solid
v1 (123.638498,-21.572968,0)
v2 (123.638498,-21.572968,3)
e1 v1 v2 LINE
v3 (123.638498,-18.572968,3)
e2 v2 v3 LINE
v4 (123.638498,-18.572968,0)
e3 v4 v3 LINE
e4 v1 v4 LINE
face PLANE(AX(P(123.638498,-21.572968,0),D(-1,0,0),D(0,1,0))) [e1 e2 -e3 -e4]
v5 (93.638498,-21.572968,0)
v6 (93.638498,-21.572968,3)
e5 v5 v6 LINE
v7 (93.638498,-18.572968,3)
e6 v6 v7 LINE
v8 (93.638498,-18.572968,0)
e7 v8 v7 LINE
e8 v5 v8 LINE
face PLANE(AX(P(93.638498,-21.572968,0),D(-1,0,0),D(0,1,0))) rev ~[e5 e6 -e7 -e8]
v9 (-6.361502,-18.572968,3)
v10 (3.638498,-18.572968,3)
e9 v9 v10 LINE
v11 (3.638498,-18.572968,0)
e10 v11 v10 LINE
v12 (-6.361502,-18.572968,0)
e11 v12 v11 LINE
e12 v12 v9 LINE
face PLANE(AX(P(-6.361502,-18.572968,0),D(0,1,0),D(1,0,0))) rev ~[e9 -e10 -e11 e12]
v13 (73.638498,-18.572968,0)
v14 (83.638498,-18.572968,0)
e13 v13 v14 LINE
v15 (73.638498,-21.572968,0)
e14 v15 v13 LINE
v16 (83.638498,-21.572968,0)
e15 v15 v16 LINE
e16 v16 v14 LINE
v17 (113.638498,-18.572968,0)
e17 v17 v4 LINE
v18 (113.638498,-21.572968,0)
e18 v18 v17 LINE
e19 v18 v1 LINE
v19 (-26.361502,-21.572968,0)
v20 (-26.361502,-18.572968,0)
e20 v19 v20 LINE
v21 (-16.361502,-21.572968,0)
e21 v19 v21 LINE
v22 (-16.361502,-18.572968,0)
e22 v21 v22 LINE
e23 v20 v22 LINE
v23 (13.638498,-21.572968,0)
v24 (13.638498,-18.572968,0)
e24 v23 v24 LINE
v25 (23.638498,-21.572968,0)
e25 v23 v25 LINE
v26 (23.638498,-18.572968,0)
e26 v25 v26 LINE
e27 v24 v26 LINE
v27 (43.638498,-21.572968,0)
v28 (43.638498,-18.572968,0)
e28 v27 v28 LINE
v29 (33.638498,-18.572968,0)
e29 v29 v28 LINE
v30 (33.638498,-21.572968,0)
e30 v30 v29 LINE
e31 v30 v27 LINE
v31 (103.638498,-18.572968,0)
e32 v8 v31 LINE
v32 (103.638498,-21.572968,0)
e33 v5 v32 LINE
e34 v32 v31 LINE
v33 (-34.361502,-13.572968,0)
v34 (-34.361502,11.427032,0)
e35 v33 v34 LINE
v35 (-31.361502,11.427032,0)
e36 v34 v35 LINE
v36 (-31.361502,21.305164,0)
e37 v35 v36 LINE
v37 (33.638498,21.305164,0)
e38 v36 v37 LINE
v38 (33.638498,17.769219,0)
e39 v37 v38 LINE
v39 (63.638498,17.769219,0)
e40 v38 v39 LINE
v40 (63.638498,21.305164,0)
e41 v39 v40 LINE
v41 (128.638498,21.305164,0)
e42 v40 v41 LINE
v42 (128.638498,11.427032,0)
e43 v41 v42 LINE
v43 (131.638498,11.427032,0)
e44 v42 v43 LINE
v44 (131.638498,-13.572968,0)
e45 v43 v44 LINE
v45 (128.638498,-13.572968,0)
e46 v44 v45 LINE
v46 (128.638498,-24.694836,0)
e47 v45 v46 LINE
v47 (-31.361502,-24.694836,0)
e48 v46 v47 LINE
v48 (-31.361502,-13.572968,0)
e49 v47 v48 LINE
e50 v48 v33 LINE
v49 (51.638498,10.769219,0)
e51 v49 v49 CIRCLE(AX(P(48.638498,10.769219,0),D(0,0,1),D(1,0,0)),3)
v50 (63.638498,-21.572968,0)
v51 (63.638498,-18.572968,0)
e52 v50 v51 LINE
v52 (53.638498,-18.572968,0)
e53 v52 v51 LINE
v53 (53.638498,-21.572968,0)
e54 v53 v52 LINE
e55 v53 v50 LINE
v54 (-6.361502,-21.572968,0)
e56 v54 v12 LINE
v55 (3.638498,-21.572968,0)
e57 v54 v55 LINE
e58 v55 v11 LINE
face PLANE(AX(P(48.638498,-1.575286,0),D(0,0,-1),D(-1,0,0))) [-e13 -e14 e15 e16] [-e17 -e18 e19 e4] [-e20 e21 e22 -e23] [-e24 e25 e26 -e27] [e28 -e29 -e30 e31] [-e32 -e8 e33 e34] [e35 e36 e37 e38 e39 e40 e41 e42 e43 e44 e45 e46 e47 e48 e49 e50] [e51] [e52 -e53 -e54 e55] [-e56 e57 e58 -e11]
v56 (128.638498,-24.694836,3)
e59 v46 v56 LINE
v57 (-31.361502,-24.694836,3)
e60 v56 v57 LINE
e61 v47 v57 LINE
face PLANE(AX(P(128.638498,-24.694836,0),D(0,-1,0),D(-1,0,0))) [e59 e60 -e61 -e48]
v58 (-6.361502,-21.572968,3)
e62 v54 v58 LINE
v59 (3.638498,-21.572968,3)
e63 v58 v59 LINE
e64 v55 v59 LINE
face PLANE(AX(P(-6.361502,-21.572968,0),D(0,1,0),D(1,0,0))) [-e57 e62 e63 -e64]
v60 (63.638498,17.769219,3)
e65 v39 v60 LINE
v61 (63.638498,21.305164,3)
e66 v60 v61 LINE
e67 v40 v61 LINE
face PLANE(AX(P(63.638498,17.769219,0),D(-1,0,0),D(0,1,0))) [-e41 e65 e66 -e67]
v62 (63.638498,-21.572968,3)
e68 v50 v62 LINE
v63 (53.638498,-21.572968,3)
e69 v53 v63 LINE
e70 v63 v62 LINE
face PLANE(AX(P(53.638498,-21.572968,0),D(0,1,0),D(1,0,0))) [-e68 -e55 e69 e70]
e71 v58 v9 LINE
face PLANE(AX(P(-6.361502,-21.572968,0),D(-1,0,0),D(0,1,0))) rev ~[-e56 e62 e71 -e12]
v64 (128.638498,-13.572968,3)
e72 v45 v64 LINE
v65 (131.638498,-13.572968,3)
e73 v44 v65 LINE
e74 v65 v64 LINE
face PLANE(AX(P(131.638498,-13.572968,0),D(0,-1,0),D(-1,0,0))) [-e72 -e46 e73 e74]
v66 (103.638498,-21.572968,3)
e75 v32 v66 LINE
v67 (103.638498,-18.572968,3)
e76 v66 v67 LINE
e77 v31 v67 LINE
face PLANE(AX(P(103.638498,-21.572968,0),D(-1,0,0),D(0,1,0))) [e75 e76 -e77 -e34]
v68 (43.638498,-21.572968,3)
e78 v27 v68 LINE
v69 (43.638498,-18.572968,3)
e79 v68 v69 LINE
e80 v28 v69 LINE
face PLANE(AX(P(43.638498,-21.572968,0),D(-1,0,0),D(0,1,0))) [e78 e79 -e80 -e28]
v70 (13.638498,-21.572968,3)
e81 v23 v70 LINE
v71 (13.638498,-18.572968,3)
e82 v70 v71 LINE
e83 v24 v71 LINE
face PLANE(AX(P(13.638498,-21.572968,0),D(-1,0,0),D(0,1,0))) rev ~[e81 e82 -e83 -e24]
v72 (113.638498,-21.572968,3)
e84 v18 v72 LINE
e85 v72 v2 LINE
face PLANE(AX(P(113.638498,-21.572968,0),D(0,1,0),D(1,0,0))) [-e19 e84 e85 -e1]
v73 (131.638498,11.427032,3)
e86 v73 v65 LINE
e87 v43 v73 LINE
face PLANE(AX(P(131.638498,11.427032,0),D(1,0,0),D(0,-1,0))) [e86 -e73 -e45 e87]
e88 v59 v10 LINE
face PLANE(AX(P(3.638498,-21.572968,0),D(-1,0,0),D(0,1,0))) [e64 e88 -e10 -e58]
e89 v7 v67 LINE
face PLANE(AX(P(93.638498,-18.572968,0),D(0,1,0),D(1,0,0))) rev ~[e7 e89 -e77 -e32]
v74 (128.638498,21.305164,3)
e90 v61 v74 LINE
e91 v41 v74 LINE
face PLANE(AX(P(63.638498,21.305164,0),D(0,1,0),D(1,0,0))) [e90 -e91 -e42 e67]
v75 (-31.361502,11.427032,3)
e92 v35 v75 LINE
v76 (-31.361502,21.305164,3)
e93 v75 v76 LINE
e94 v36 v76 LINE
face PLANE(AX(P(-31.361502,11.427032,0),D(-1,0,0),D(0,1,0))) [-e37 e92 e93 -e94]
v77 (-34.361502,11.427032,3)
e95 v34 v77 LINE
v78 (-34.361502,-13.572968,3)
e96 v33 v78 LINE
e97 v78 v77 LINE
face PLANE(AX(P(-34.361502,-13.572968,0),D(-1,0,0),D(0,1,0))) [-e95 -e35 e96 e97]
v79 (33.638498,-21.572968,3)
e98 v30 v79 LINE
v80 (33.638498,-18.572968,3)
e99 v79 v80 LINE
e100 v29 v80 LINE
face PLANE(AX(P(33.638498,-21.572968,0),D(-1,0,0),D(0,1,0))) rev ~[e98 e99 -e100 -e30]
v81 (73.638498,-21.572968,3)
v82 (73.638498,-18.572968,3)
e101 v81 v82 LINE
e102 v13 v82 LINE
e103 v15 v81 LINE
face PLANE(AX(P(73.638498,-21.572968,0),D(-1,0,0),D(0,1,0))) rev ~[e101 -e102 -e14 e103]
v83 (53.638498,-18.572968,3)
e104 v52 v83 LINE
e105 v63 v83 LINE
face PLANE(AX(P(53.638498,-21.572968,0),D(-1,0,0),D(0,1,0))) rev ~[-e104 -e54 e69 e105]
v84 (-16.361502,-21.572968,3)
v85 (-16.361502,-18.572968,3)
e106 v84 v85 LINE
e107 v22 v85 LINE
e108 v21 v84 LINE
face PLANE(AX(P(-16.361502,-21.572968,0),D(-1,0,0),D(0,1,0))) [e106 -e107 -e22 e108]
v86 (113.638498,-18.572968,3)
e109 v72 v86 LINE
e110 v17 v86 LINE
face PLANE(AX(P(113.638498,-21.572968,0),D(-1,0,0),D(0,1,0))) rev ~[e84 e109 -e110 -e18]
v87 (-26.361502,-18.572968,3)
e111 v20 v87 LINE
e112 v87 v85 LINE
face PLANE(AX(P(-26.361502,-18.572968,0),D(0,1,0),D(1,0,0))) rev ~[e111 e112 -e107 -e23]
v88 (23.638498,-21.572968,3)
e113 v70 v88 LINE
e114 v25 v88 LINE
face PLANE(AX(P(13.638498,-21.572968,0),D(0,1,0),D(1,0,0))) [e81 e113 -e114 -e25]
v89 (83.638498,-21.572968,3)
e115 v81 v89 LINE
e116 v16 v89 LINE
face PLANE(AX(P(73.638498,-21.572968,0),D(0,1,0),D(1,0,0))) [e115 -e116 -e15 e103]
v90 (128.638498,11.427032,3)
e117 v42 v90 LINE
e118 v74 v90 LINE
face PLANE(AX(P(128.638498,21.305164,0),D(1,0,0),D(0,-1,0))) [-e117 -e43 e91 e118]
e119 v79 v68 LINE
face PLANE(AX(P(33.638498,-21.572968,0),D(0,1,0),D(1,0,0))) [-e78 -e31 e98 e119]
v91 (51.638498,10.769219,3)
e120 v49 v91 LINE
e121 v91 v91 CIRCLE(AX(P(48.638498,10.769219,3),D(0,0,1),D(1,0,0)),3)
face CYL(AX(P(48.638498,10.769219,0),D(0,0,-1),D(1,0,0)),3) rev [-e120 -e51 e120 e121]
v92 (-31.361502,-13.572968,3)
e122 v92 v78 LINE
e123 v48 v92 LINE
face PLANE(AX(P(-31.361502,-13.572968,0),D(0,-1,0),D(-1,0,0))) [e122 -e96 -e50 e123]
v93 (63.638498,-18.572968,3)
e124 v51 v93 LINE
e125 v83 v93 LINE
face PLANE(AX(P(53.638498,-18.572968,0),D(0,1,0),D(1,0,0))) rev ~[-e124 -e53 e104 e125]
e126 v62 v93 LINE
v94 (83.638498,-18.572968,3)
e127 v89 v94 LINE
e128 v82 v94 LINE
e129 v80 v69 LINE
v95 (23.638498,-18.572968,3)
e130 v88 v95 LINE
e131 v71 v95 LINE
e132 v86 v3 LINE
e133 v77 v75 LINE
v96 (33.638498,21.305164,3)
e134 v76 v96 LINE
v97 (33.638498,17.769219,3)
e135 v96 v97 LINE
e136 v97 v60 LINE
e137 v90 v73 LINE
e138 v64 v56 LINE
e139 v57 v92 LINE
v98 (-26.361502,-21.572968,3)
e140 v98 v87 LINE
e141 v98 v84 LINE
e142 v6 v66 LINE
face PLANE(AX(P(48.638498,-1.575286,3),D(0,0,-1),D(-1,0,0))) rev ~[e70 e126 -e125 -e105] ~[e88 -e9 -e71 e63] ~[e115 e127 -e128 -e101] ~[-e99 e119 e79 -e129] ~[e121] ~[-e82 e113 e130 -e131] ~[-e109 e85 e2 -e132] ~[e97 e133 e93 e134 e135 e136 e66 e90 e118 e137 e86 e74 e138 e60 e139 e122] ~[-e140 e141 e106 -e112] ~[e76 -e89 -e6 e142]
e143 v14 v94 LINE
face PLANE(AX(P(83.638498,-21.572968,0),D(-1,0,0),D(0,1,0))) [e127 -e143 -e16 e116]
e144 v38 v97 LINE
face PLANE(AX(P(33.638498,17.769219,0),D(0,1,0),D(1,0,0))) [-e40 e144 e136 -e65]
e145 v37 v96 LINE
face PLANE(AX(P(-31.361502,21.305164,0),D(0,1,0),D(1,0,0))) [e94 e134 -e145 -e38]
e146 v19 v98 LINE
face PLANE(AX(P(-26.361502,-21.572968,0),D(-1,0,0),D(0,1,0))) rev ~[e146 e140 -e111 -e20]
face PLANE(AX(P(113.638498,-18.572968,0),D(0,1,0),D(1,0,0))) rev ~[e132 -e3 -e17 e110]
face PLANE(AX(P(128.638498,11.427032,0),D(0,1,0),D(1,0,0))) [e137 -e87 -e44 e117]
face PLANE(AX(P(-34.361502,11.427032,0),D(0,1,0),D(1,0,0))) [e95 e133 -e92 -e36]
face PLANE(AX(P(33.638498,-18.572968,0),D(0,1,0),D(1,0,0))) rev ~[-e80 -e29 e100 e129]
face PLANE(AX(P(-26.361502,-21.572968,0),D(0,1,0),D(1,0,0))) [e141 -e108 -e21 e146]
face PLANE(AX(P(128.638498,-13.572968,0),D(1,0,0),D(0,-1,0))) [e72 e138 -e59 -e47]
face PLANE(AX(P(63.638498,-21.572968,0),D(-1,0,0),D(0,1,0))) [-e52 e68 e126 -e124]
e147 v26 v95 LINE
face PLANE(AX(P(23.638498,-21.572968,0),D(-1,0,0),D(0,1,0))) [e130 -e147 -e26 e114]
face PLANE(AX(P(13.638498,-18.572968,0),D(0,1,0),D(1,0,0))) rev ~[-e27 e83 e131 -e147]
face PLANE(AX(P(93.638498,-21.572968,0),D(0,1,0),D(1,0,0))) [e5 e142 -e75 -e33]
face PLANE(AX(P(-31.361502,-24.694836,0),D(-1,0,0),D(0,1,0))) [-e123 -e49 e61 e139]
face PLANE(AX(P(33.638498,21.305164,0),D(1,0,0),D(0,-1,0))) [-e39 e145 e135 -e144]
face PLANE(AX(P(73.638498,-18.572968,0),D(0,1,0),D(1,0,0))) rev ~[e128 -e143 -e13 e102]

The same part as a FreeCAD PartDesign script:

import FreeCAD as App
import Part
import Sketcher
from FreeCAD import Vector


def add_polygon(sketch, points):
    """Adds a closed chain of lines whose ends are joined by coincident constraints."""
    first, n = sketch.GeometryCount, len(points)
    for a, b in zip(points, points[1:] + points[:1]):
        sketch.addGeometry(Part.LineSegment(App.Vector(*a, 0), App.Vector(*b, 0)), False)
    for i in range(n):
        sketch.addConstraint(Sketcher.Constraint("Coincident", first + i, 2, first + (i + 1) % n, 1))

doc = App.newDocument("Part")
body = doc.addObject("PartDesign::Body", "Body")

sketch1 = body.newObject("Sketcher::SketchObject", "Sketch")
sketch1.AttachmentSupport = (doc.getObject("XY_Plane"), [""])
sketch1.MapMode = "FlatFace"
add_polygon(sketch1, [(33.6, 21.3), (-31.4, 21.3), (-31.4, 11.4), (-34.4, 11.4), (-34.4, -13.6), (-31.4, -13.6), (-31.4, -24.7), (128.6, -24.7), (128.6, -13.6), (131.6, -13.6), (131.6, 11.4), (128.6, 11.4), (128.6, 21.3), (63.6, 21.3), (63.6, 17.8), (33.6, 17.8)])
add_polygon(sketch1, [(113.6, -21.6), (113.6, -18.6), (123.6, -18.6), (123.6, -21.6)])
add_polygon(sketch1, [(93.6, -21.6), (93.6, -18.6), (103.6, -18.6), (103.6, -21.6)])
add_polygon(sketch1, [(73.6, -21.6), (73.6, -18.6), (83.6, -18.6), (83.6, -21.6)])
add_polygon(sketch1, [(53.6, -21.6), (53.6, -18.6), (63.6, -18.6), (63.6, -21.6)])
add_polygon(sketch1, [(33.6, -21.6), (33.6, -18.6), (43.6, -18.6), (43.6, -21.6)])
add_polygon(sketch1, [(13.6, -21.6), (13.6, -18.6), (23.6, -18.6), (23.6, -21.6)])
add_polygon(sketch1, [(-6.4, -21.6), (-6.4, -18.6), (3.6, -18.6), (3.6, -21.6)])
add_polygon(sketch1, [(-26.4, -21.6), (-26.4, -18.6), (-16.4, -18.6), (-16.4, -21.6)])
sketch1.addGeometry(Part.Circle(Vector(48.6, 10.8, 0), Vector(0, 0, 1), 3), False)
sketch1.addConstraint([
    Sketcher.Constraint("Horizontal", 0),
    Sketcher.Constraint("Vertical", 1),
    Sketcher.Constraint("Horizontal", 2),
    Sketcher.Constraint("Vertical", 3),
    Sketcher.Constraint("Horizontal", 4),
    Sketcher.Constraint("Vertical", 5),
    Sketcher.Constraint("Horizontal", 6),
    Sketcher.Constraint("Vertical", 7),
    Sketcher.Constraint("Horizontal", 8),
    Sketcher.Constraint("Vertical", 9),
    Sketcher.Constraint("Horizontal", 10),
    Sketcher.Constraint("Vertical", 11),
    Sketcher.Constraint("Horizontal", 12),
    Sketcher.Constraint("Vertical", 13),
    Sketcher.Constraint("Horizontal", 14),
    Sketcher.Constraint("Vertical", 15),
    Sketcher.Constraint("Vertical", 16),
    Sketcher.Constraint("Horizontal", 17),
    Sketcher.Constraint("Vertical", 18),
    Sketcher.Constraint("Horizontal", 19),
    Sketcher.Constraint("Vertical", 20),
    Sketcher.Constraint("Horizontal", 21),
    Sketcher.Constraint("Vertical", 22),
    Sketcher.Constraint("Horizontal", 23),
    Sketcher.Constraint("Vertical", 24),
    Sketcher.Constraint("Horizontal", 25),
    Sketcher.Constraint("Vertical", 26),
    Sketcher.Constraint("Horizontal", 27),
    Sketcher.Constraint("Vertical", 28),
    Sketcher.Constraint("Horizontal", 29),
    Sketcher.Constraint("Vertical", 30),
    Sketcher.Constraint("Horizontal", 31),
    Sketcher.Constraint("Vertical", 32),
    Sketcher.Constraint("Horizontal", 33),
    Sketcher.Constraint("Vertical", 34),
    Sketcher.Constraint("Horizontal", 35),
    Sketcher.Constraint("Vertical", 36),
    Sketcher.Constraint("Horizontal", 37),
    Sketcher.Constraint("Vertical", 38),
    Sketcher.Constraint("Horizontal", 39),
    Sketcher.Constraint("Vertical", 40),
    Sketcher.Constraint("Horizontal", 41),
    Sketcher.Constraint("Vertical", 42),
    Sketcher.Constraint("Horizontal", 43),
    Sketcher.Constraint("Vertical", 44),
    Sketcher.Constraint("Horizontal", 45),
    Sketcher.Constraint("Vertical", 46),
    Sketcher.Constraint("Horizontal", 47),
    Sketcher.Constraint("Horizontal", 4, 2, 7, 2),
    Sketcher.Constraint("Horizontal", 2, 2, 9, 2),
    Sketcher.Constraint("Horizontal", 0, 2, 11, 2),
    Sketcher.Constraint("Horizontal", 17, 2, 20, 2),
    Sketcher.Constraint("Horizontal", 19, 2, 22, 2),
    Sketcher.Constraint("Horizontal", 21, 2, 24, 2),
    Sketcher.Constraint("Horizontal", 23, 2, 26, 2),
    Sketcher.Constraint("Horizontal", 25, 2, 28, 2),
    Sketcher.Constraint("Horizontal", 27, 2, 30, 2),
    Sketcher.Constraint("Horizontal", 29, 2, 32, 2),
    Sketcher.Constraint("Horizontal", 31, 2, 34, 2),
    Sketcher.Constraint("Horizontal", 33, 2, 36, 2),
    Sketcher.Constraint("Horizontal", 35, 2, 38, 2),
    Sketcher.Constraint("Horizontal", 37, 2, 40, 2),
    Sketcher.Constraint("Horizontal", 39, 2, 42, 2),
    Sketcher.Constraint("Horizontal", 41, 2, 44, 2),
    Sketcher.Constraint("Horizontal", 43, 2, 46, 2),
    Sketcher.Constraint("Vertical", 1, 2, 4, 2),
    Sketcher.Constraint("Vertical", 7, 2, 10, 2),
    Sketcher.Constraint("Vertical", 13, 2, 29, 2),
    Sketcher.Constraint("Vertical", 15, 2, 32, 2),
    Sketcher.Constraint("Equal", 4, 8),
    Sketcher.Constraint("Equal", 0, 12),
    Sketcher.Constraint("Equal", 19, 21),
    Sketcher.Constraint("Equal", 23, 25),
    Sketcher.Constraint("Equal", 27, 29),
    Sketcher.Constraint("Equal", 31, 33),
    Sketcher.Constraint("Equal", 35, 37),
    Sketcher.Constraint("Equal", 39, 41),
    Sketcher.Constraint("Equal", 43, 45),
    Sketcher.Constraint("Equal", 10, 16),
    Sketcher.Constraint("Diameter", 48, 6.0),
    Sketcher.Constraint("DistanceX", 0, 2, 0, 1, 65.0),
    Sketcher.Constraint("DistanceX", 2, 2, 2, 1, 3.0),
    Sketcher.Constraint("DistanceX", 6, 1, 6, 2, 160.0),
    Sketcher.Constraint("DistanceX", 17, 1, 17, 2, 10.0),
    Sketcher.Constraint("DistanceY", 3, 2, 3, 1, 25.0),
    Sketcher.Constraint("DistanceX", 0, 2, 48, 3, 80.0),
    Sketcher.Constraint("DistanceY", 5, 2, 0, 2, 46.0),
    Sketcher.Constraint("DistanceY", 48, 3, 13, 2, 7.0),
    Sketcher.Constraint("DistanceX", 16, 2, 7, 2, 15.0),
    Sketcher.Constraint("DistanceY", 16, 2, 7, 2, 5.0),
    Sketcher.Constraint("DistanceX", 20, 2, 16, 2, 20.0),
    Sketcher.Constraint("DistanceX", 24, 2, 20, 2, 20.0),
    Sketcher.Constraint("DistanceX", 36, 2, 32, 2, 20.0),
    Sketcher.Constraint("DistanceX", 40, 2, 36, 2, 20.0),
    Sketcher.Constraint("DistanceX", 4, 2, 44, 2, 5.0),
    Sketcher.Constraint("DistanceY", 1, 2, 1, 1, 9.878133),
    Sketcher.Constraint("DistanceY", 13, 2, 13, 1, 3.535945),
    Sketcher.Constraint("DistanceY", -1, 1, 48, 3, 10.769219),
    Sketcher.Constraint("DistanceX", -1, 1, 48, 3, 48.638498),
])
pad1 = body.newObject("PartDesign::Pad", "Pad")
pad1.Profile = sketch1
pad1.Length = 3

doc.recompute()
